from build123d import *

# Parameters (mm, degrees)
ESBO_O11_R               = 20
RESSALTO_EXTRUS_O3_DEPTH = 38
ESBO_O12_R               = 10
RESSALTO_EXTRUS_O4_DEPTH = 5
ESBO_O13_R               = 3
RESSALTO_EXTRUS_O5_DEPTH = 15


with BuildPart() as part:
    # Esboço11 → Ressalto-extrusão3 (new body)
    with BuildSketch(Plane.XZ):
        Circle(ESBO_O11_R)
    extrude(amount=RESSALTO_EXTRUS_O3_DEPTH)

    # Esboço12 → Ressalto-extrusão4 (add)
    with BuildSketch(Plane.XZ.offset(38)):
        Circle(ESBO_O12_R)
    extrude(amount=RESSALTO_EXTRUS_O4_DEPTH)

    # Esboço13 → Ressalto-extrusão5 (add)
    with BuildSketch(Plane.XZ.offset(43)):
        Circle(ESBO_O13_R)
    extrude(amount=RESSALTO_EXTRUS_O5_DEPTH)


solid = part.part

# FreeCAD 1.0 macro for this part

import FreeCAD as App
import Part
import Sketcher

V = App.Vector
Q = App.Units.Quantity

doc = App.newDocument("Part")
body = doc.addObject("PartDesign::Body", "Body")

# Sketch on XZ plane
sketch1 = doc.addObject("Sketcher::SketchObject", "Sketch")
body.addObject(sketch1)
sketch1.AttachmentSupport = (doc.XZ_Plane, [""])
sketch1.MapMode = "FlatFace"
sketch1.addGeometry(Part.Circle(V(0, 0, 0), V(0, 0, 1), 20), False)
sketch1.addConstraint([
    Sketcher.Constraint("Coincident", 0, 3, -1, 1),
    Sketcher.Constraint("Diameter", 0, Q("40 mm")),
])
pad1 = doc.addObject("PartDesign::Pad", "Pad")
body.addObject(pad1)
pad1.Profile = sketch1
pad1.Length = 38

# Sketch on XZ plane
sketch2 = doc.addObject("Sketcher::SketchObject", "Sketch001")
body.addObject(sketch2)
sketch2.AttachmentSupport = (doc.XZ_Plane, [""])
sketch2.MapMode = "FlatFace"
sketch2.AttachmentOffset = App.Placement(V(0, 0, 38), App.Rotation())
sketch2.addGeometry(Part.Circle(V(0, 0, 0), V(0, 0, 1), 10), False)
sketch2.addConstraint([
    Sketcher.Constraint("Coincident", 0, 3, -1, 1),
    Sketcher.Constraint("Diameter", 0, Q("20 mm")),
])
pad2 = doc.addObject("PartDesign::Pad", "Pad001")
body.addObject(pad2)
pad2.Profile = sketch2
pad2.Length = 5

# Sketch on XZ plane
sketch3 = doc.addObject("Sketcher::SketchObject", "Sketch002")
body.addObject(sketch3)
sketch3.AttachmentSupport = (doc.XZ_Plane, [""])
sketch3.MapMode = "FlatFace"
sketch3.AttachmentOffset = App.Placement(V(0, 0, 43), App.Rotation())
sketch3.addGeometry(Part.Circle(V(0, 0, 0), V(0, 0, 1), 3), False)
sketch3.addConstraint([
    Sketcher.Constraint("Coincident", 0, 3, -1, 1),
    Sketcher.Constraint("Diameter", 0, Q("6 mm")),
])
pad3 = doc.addObject("PartDesign::Pad", "Pad002")
body.addObject(pad3)
pad3.Profile = sketch3
pad3.Length = 15

doc.recompute()
